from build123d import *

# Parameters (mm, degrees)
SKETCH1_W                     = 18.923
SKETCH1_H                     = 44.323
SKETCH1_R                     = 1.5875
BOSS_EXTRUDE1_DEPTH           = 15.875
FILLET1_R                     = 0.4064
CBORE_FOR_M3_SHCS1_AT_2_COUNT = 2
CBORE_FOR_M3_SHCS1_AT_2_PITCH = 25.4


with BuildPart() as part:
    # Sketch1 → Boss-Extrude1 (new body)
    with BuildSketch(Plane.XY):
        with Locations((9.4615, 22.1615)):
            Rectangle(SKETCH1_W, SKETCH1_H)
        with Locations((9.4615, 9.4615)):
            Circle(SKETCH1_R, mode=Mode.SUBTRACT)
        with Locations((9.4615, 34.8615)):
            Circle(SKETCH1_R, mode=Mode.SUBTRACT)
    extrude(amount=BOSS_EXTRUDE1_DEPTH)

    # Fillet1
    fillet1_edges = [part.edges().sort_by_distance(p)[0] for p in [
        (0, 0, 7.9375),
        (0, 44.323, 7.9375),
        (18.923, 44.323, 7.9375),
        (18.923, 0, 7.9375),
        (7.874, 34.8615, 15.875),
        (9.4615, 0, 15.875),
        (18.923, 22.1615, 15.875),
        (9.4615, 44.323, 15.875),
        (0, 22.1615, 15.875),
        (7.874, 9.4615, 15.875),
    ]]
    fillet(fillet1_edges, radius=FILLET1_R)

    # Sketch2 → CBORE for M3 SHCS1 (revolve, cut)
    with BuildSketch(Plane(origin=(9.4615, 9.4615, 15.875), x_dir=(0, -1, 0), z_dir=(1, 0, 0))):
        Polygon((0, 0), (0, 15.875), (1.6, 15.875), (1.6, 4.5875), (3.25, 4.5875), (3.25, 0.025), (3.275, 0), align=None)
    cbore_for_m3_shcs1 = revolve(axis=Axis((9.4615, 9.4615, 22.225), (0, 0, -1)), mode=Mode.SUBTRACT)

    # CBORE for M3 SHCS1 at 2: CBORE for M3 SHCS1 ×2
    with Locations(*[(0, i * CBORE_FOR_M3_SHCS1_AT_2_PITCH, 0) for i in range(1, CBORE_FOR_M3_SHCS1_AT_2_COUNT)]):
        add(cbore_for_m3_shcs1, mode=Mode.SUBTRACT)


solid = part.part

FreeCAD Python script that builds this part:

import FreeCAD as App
import Part
import Sketcher
from FreeCAD import Vector
Q = App.Units.Quantity


def edges_at(feature, points):
    """Names of the edges that pass closest to the given points."""
    edges = feature.Shape.Edges
    near = lambda p: min(range(len(edges)), key=lambda i: edges[i].distToShape(Part.Vertex(*p))[0])
    return sorted({f"Edge{near(p) + 1}" for p in points})

doc = App.newDocument("Part")
params = doc.addObject("Spreadsheet::Sheet", "Params")
for row, (alias, value) in enumerate([
    ("sketch1_diameter", "0.125 in"),
    ("sketch1_width", "0.745 in"),
    ("sketch1_height", "1.745 in"),
    ("pad1_length", "0.625 in"),
    ("fillet_radius", "0.016 in"),
    ("sketch2_height", "0.625 in"),
    ("groove_angle", "360 deg"),
    ("linearpattern_pitch", "1 in"),
], start=1):
    params.set(f"A{row}", alias)
    params.set(f"B{row}", "=" + value)
    params.setAlias(f"B{row}", alias)

body = doc.addObject("PartDesign::Body", "Body")

# Sketch on XY plane
sketch1 = doc.addObject("Sketcher::SketchObject", "Sketch")
body.addObject(sketch1)
sketch1.AttachmentSupport = (doc.XY_Plane, [""])
sketch1.MapMode = "FlatFace"
sketch1.addGeometry([
    Part.LineSegment(Vector(0, 44.3, 0), Vector(0, 0, 0)),  # 0
    Part.LineSegment(Vector(0, 0, 0), Vector(18.9, 0, 0)),  # 1
    Part.LineSegment(Vector(18.9, 0, 0), Vector(18.9, 44.3, 0)),  # 2
    Part.LineSegment(Vector(18.9, 44.3, 0), Vector(0, 44.3, 0)),  # 3
    Part.Circle(Vector(9.5, 9.5, 0), Vector(0, 0, 1), 1.6),  # 4
    Part.Circle(Vector(9.5, 34.9, 0), Vector(0, 0, 1), 1.6),  # 5
], False)
sketch1.addConstraint([
    Sketcher.Constraint("Coincident", 0, 2, 1, 1),
    Sketcher.Constraint("Coincident", 1, 2, 2, 1),
    Sketcher.Constraint("Coincident", 2, 2, 3, 1),
    Sketcher.Constraint("Coincident", 3, 2, 0, 1),
    Sketcher.Constraint("Vertical", 0),
    Sketcher.Constraint("Horizontal", 1),
    Sketcher.Constraint("Vertical", 2),
    Sketcher.Constraint("Horizontal", 3),
    Sketcher.Constraint("Coincident", 0, 2, -1, 1),
    Sketcher.Constraint("Equal", 4, 5),
    Sketcher.Constraint("Vertical", 4, 3, 5, 3),
    Sketcher.Constraint("Diameter", 4, Q("0.125 in")),
    Sketcher.Constraint("DistanceY", 4, 3, 5, 3, Q("1 in")),
    Sketcher.Constraint("DistanceX", 1, 1, 1, 2, Q("0.745 in")),
    Sketcher.Constraint("DistanceY", 0, 2, 0, 1, Q("1.745 in")),
    Sketcher.Constraint("DistanceX", -1, 1, 4, 3, Q("0.3725 in")),
    Sketcher.Constraint("DistanceY", -1, 1, 4, 3, Q("0.3725 in")),
])
sketch1.setExpression("Constraints[11]", "Params.sketch1_diameter")
sketch1.setExpression("Constraints[13]", "Params.sketch1_width")
sketch1.setExpression("Constraints[14]", "Params.sketch1_height")
pad1 = doc.addObject("PartDesign::Pad", "Pad")
body.addObject(pad1)
pad1.Profile = sketch1
pad1.setExpression("Length", "Params.pad1_length")
doc.recompute()

fillet = doc.addObject("PartDesign::Fillet", "Fillet")
body.addObject(fillet)
fillet.Base = (pad1, edges_at(pad1, [
    (0, 0, 7.938),
    (0, 44.323, 7.938),
    (18.923, 44.323, 7.938),
    (18.923, 0, 7.938),
    (7.874, 34.861, 15.875),
    (9.461, 0, 15.875),
    (18.923, 22.162, 15.875),
    (9.461, 44.323, 15.875),
    (0, 22.162, 15.875),
    (7.874, 9.461, 15.875),
]))
fillet.setExpression("Radius", "Params.fillet_radius")

# Sketch on YZ plane
sketch2 = doc.addObject("Sketcher::SketchObject", "Sketch001")
body.addObject(sketch2)
sketch2.AttachmentSupport = (doc.YZ_Plane, [""])
sketch2.MapMode = "FlatFace"
sketch2.AttachmentOffset = App.Placement(Vector(0, 0, 0.3725 * 25.4), App.Rotation())
sketch2.addGeometry([
    Part.LineSegment(Vector(9.461, 0, 0), Vector(9.461, 15.875, 0)),  # 0
    Part.LineSegment(Vector(9.461, 15.875, 0), Vector(6.186, 15.875, 0)),  # 1
    Part.LineSegment(Vector(6.186, 15.875, 0), Vector(6.212, 15.85, 0)),  # 2
    Part.LineSegment(Vector(6.212, 15.85, 0), Vector(6.212, 11.287, 0)),  # 3
    Part.LineSegment(Vector(6.212, 11.287, 0), Vector(7.862, 11.287, 0)),  # 4
    Part.LineSegment(Vector(7.862, 11.287, 0), Vector(7.862, 0, 0)),  # 5
    Part.LineSegment(Vector(7.862, 0, 0), Vector(9.461, 0, 0)),  # 6
], False)
sketch2.addGeometry(Part.LineSegment(Vector(9.461, 15.875, 0), Vector(9.461, 0, 0)), True)  # axis
sketch2.addConstraint([
    Sketcher.Constraint("Coincident", 0, 2, 1, 1),
    Sketcher.Constraint("Coincident", 1, 2, 2, 1),
    Sketcher.Constraint("Coincident", 2, 2, 3, 1),
    Sketcher.Constraint("Coincident", 3, 2, 4, 1),
    Sketcher.Constraint("Coincident", 4, 2, 5, 1),
    Sketcher.Constraint("Coincident", 5, 2, 6, 1),
    Sketcher.Constraint("Coincident", 6, 2, 0, 1),
    Sketcher.Constraint("Vertical", 0),
    Sketcher.Constraint("Horizontal", 1),
    Sketcher.Constraint("Vertical", 3),
    Sketcher.Constraint("Horizontal", 4),
    Sketcher.Constraint("Vertical", 5),
    Sketcher.Constraint("Horizontal", 6),
    Sketcher.Constraint("Vertical", 7),
    Sketcher.Constraint("Coincident", 7, 1, 0, 2),
    Sketcher.Constraint("PointOnObject", 5, 2, -1),
    Sketcher.Constraint("PointOnObject", 7, 2, -1),
    Sketcher.Constraint("Angle", 2, Q("-45 deg")),
    Sketcher.Constraint("DistanceY", 0, 1, 0, 2, Q("0.625 in")),
    Sketcher.Constraint("DistanceX", 1, 2, 1, 1, Q("3.275 mm")),
    Sketcher.Constraint("DistanceX", 4, 1, 4, 2, Q("1.65 mm")),
    Sketcher.Constraint("DistanceX", 6, 1, 6, 2, Q("1.6 mm")),
    Sketcher.Constraint("DistanceY", 3, 2, 3, 1, Q("4.5625 mm")),
    Sketcher.Constraint("DistanceX", -1, 1, 0, 2, Q("0.3725 in")),
])
sketch2.setExpression("Constraints[18]", "Params.sketch2_height")
groove = doc.addObject("PartDesign::Groove", "Groove")
body.addObject(groove)
groove.Profile = sketch2
groove.ReferenceAxis = (sketch2, ["Axis0"])
groove.setExpression("Angle", "Params.groove_angle")
doc.recompute()

linearpattern = doc.addObject("PartDesign::LinearPattern", "LinearPattern")
body.addObject(linearpattern)
linearpattern.Originals = [groove]
linearpattern.Direction = (doc.Y_Axis, [""])
linearpattern.Mode = "offset"
linearpattern.setExpression("Offset", "Params.linearpattern_pitch")
linearpattern.Occurrences = 2
body.Tip = linearpattern

doc.recompute()
